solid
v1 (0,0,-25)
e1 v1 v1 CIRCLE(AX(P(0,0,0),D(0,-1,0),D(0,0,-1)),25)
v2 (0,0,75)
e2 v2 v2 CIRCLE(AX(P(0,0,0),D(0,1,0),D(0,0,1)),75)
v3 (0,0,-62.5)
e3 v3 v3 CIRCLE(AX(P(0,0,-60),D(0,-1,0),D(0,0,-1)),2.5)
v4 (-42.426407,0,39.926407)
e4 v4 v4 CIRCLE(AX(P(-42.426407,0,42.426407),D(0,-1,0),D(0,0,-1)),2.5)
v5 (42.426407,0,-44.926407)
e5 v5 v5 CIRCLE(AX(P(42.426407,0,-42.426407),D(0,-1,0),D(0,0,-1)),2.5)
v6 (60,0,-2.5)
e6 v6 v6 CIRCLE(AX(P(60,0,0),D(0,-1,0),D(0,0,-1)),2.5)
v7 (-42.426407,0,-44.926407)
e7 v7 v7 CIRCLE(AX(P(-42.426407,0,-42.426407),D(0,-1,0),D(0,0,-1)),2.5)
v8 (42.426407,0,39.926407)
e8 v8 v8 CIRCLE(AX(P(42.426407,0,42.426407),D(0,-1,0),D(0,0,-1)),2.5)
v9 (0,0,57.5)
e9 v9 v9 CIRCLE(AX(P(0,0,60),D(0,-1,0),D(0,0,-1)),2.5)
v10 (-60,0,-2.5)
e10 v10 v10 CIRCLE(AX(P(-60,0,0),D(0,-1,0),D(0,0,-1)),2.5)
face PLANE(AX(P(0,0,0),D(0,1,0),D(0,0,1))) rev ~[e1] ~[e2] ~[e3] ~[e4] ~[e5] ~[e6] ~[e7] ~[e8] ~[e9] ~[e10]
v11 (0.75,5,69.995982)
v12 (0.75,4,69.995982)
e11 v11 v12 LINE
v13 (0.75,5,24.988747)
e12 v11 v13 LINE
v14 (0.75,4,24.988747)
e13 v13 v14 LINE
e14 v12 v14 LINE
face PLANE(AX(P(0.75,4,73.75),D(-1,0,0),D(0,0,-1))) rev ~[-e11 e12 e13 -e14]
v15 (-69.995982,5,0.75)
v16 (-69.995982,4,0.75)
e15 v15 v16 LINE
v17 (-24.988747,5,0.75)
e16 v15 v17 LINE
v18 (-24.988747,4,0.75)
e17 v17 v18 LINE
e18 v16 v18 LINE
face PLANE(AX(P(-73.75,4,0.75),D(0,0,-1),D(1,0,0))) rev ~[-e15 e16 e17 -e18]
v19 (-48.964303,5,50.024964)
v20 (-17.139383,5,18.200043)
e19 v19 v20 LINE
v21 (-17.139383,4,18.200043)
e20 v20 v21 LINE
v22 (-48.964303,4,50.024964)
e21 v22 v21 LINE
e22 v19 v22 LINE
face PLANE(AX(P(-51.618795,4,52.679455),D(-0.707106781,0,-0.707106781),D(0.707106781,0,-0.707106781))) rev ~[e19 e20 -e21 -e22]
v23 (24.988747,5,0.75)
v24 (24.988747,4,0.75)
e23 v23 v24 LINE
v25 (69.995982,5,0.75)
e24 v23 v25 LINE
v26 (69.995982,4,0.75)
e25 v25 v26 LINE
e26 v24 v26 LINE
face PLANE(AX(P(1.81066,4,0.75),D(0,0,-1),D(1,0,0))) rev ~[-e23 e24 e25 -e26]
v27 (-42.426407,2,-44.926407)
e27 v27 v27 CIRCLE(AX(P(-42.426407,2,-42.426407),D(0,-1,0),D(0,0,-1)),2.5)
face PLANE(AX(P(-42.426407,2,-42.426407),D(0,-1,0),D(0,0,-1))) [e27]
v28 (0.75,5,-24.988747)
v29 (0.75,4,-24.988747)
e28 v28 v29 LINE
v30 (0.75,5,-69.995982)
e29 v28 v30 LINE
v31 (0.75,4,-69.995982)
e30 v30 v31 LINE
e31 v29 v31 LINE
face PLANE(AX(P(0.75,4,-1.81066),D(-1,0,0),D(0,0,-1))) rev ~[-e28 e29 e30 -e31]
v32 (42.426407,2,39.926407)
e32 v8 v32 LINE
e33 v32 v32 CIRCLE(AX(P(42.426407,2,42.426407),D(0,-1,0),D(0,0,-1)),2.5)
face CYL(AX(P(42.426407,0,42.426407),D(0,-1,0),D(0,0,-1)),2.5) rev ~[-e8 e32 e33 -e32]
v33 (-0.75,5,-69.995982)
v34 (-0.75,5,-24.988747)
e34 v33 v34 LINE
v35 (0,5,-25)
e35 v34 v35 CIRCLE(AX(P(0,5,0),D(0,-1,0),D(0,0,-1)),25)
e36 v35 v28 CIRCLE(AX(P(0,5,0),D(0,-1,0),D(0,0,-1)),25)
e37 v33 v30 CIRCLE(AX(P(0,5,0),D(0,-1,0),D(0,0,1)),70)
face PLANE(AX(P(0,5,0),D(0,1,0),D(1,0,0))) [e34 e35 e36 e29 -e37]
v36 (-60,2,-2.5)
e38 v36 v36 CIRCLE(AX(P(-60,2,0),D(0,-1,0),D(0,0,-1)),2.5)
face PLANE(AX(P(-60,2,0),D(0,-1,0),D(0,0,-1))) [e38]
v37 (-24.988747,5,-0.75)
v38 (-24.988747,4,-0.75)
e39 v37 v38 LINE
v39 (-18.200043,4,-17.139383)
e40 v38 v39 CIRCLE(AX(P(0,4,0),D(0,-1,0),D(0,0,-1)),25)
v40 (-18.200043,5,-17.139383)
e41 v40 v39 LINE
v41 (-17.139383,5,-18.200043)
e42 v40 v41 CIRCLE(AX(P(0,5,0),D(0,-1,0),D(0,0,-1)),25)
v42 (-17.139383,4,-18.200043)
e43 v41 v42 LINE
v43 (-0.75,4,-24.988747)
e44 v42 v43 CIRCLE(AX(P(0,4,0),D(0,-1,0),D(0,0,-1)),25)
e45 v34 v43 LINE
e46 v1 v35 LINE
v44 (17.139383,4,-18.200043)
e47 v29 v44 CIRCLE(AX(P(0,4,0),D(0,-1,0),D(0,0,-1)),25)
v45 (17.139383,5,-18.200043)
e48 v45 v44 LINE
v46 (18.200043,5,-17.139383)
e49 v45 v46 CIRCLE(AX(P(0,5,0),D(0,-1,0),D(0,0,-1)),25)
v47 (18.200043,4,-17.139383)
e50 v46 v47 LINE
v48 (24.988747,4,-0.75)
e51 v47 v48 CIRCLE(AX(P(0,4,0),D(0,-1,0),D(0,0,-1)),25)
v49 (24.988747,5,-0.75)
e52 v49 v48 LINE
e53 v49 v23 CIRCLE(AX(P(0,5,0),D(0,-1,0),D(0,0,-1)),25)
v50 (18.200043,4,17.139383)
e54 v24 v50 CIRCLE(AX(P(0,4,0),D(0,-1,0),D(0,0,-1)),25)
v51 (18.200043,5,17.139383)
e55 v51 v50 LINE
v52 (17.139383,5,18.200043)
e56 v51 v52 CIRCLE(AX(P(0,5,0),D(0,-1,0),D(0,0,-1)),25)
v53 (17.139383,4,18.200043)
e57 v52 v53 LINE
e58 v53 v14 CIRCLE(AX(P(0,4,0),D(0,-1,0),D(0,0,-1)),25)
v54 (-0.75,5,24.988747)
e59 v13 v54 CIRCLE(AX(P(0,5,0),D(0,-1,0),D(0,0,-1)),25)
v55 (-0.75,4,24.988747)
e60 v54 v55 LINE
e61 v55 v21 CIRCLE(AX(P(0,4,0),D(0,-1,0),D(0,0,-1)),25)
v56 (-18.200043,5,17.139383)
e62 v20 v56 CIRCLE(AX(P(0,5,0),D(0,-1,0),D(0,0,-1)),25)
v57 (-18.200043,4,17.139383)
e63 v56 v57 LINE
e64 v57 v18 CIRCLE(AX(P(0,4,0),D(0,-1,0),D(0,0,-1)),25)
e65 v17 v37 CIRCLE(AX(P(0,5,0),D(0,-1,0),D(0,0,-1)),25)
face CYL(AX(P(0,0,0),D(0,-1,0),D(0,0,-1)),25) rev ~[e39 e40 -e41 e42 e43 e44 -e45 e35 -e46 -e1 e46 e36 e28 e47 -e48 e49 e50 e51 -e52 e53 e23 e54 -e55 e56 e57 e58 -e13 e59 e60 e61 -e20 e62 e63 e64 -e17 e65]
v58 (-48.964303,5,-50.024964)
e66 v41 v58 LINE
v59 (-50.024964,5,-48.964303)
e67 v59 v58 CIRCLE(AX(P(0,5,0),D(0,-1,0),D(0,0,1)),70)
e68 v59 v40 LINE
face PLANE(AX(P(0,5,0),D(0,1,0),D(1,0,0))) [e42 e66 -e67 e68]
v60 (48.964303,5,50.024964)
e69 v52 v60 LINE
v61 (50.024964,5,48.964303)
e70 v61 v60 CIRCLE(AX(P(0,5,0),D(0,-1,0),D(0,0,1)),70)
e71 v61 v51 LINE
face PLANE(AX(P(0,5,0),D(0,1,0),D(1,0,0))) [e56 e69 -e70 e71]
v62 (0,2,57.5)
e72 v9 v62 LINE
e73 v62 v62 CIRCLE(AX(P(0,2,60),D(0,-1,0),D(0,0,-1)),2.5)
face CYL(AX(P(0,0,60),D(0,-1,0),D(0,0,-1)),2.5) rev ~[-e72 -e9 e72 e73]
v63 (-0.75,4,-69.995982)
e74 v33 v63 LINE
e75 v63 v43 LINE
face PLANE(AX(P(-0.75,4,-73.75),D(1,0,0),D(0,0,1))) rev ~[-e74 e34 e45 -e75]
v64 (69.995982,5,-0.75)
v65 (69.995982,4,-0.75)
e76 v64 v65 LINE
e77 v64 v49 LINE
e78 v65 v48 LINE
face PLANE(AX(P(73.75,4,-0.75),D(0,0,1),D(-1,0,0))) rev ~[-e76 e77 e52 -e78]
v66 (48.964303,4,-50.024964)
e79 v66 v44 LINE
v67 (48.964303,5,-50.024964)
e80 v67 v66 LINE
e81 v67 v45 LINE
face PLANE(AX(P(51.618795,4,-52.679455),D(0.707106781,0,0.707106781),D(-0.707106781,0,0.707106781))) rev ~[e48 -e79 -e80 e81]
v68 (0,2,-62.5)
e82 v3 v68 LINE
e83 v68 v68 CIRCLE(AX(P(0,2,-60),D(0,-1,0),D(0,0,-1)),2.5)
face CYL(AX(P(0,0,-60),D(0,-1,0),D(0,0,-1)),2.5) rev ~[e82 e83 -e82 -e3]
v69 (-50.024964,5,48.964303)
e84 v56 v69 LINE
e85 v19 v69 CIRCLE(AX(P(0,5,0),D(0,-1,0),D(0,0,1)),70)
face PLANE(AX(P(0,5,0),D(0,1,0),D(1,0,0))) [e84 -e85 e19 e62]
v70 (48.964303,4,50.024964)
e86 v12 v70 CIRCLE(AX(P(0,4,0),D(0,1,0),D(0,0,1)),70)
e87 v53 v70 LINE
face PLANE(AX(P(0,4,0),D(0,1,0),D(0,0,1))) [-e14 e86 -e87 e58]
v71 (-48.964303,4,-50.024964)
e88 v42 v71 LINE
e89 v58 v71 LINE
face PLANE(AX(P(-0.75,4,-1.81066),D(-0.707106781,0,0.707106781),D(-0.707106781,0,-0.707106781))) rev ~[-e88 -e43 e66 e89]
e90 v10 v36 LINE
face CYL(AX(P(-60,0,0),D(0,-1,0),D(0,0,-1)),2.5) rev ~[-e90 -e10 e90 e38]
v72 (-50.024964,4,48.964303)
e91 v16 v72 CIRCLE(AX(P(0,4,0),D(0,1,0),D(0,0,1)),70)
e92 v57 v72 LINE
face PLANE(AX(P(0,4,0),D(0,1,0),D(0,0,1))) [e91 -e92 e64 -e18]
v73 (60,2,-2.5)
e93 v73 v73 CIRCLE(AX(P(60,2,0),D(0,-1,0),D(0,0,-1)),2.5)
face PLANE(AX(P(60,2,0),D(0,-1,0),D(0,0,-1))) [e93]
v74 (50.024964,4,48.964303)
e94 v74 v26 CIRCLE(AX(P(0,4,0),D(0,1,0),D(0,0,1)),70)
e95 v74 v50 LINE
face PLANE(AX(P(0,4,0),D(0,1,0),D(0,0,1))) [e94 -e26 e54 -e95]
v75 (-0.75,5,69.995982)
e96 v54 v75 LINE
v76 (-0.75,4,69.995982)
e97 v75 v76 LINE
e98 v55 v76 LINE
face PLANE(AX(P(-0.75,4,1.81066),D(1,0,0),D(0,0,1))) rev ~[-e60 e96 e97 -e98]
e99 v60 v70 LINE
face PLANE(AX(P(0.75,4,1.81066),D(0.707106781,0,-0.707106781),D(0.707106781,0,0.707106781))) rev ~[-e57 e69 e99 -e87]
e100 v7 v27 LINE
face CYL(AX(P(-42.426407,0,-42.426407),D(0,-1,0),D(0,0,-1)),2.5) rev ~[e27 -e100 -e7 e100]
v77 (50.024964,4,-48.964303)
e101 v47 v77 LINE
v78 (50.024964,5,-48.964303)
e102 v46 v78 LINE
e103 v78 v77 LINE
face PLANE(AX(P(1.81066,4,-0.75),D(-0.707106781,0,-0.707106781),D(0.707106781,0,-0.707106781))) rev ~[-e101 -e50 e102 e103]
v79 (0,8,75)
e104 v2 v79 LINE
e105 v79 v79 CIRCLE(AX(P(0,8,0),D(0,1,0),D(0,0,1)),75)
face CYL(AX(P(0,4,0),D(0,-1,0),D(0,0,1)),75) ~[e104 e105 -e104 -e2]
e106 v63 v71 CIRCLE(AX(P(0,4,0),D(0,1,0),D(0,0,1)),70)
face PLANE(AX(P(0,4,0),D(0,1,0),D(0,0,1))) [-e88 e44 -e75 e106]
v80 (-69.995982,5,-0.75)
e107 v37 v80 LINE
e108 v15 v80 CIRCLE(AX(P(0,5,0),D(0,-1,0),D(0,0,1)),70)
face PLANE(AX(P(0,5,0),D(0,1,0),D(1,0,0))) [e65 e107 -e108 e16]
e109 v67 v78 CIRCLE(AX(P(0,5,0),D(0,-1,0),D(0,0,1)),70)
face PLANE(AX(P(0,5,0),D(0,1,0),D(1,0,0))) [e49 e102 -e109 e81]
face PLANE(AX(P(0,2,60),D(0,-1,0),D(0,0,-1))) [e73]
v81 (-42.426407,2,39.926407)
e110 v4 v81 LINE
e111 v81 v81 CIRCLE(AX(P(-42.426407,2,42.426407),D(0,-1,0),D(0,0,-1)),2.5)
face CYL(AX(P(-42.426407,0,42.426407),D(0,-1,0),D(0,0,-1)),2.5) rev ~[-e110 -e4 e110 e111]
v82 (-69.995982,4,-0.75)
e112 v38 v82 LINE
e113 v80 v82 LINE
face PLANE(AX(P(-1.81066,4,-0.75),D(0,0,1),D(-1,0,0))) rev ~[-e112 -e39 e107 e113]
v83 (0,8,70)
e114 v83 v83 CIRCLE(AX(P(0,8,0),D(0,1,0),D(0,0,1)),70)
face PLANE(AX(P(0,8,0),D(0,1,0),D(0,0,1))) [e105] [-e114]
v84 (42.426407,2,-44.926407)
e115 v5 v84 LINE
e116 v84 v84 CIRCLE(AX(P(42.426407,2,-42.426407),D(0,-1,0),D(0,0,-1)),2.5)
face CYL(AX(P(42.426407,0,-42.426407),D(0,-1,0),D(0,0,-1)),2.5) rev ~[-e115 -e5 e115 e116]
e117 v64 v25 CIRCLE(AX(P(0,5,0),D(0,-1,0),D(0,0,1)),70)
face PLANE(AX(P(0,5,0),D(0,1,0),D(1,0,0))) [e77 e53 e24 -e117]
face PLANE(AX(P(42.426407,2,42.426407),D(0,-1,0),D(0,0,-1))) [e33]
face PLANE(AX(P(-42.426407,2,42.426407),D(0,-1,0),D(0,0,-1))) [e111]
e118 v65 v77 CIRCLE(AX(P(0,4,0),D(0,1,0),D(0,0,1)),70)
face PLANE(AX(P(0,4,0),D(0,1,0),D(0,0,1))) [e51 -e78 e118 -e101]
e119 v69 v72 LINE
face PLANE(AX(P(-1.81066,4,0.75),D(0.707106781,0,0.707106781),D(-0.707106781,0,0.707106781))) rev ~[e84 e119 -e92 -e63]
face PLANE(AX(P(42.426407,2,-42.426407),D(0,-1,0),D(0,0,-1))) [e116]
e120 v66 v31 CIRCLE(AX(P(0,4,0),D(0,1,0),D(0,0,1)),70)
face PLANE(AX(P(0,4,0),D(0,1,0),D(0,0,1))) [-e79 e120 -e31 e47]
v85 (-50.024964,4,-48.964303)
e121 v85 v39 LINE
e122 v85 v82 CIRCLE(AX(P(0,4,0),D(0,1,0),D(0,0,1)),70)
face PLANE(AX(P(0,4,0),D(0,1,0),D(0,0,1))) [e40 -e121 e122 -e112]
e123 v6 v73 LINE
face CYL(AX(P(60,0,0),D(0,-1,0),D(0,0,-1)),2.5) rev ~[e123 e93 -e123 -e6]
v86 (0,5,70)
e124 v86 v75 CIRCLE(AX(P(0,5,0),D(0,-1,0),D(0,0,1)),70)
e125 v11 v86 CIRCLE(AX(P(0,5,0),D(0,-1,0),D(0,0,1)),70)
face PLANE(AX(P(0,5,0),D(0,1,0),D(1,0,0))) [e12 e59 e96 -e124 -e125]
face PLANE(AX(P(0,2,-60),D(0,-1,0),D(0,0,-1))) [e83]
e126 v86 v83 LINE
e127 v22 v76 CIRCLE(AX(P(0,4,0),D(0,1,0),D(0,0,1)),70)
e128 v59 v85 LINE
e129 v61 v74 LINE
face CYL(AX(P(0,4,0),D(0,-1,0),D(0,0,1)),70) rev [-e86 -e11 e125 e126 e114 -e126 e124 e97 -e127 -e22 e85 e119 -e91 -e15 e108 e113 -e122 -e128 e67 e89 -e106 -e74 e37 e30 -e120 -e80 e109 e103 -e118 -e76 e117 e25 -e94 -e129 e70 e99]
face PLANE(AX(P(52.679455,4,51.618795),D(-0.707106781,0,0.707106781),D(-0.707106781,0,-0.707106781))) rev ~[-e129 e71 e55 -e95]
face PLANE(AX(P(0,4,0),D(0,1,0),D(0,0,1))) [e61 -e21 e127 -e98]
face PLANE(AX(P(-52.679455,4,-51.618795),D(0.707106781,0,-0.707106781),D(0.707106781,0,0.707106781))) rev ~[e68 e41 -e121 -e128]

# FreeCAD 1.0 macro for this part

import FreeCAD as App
import Part
import Sketcher
from FreeCAD import Vector


def add_polygon(sketch, points):
    """Adds a closed chain of lines whose ends are joined by coincident constraints."""
    first, n = sketch.GeometryCount, len(points)
    for a, b in zip(points, points[1:] + points[:1]):
        sketch.addGeometry(Part.LineSegment(App.Vector(*a, 0), App.Vector(*b, 0)), False)
    for i in range(n):
        sketch.addConstraint(Sketcher.Constraint("Coincident", first + i, 2, first + (i + 1) % n, 1))

doc = App.newDocument("Part")
body = doc.addObject("PartDesign::Body", "Body")

sketch1 = doc.addObject("Sketcher::SketchObject", "Sketch")
body.addObject(sketch1)
sketch1.AttachmentSupport = (doc.XZ_Plane, [""])
sketch1.MapMode = "FlatFace"
sketch1.addGeometry(Part.Circle(Vector(0, 0, 0), Vector(0, 0, 1), 75), False)
sketch1.addConstraint(Sketcher.Constraint("Coincident", 0, 3, -1, 1))
sketch1.addConstraint(Sketcher.Constraint("Diameter", 0, 150.0))
pad1 = doc.addObject("PartDesign::Pad", "Pad")
body.addObject(pad1)
pad1.Profile = sketch1
pad1.Length = 4
pad1.Reversed = True

sketch2 = doc.addObject("Sketcher::SketchObject", "Sketch001")
body.addObject(sketch2)
sketch2.AttachmentSupport = (doc.XZ_Plane, [""])
sketch2.MapMode = "FlatFace"
sketch2.AttachmentOffset = App.Placement(Vector(0, 0, -4), App.Rotation())
sketch2.addGeometry(Part.Circle(Vector(0, 0, 0), Vector(0, 0, 1), 75), False)
sketch2.addGeometry(Part.Circle(Vector(0, 0, 0), Vector(0, 0, 1), 70), False)
sketch2.addConstraint(Sketcher.Constraint("Coincident", 0, 3, -1, 1))
sketch2.addConstraint(Sketcher.Constraint("Coincident", 1, 3, -1, 1))
sketch2.addConstraint(Sketcher.Constraint("Diameter", 0, 150.0))
sketch2.addConstraint(Sketcher.Constraint("Diameter", 1, 140.0))
pad2 = doc.addObject("PartDesign::Pad", "Pad001")
body.addObject(pad2)
pad2.Profile = sketch2
pad2.Length = 4
pad2.Reversed = True

sketch3 = doc.addObject("Sketcher::SketchObject", "Sketch002")
body.addObject(sketch3)
sketch3.AttachmentSupport = (doc.XZ_Plane, [""])
sketch3.MapMode = "FlatFace"
sketch3.AttachmentOffset = App.Placement(Vector(0, 0, -4), App.Rotation())
add_polygon(sketch3, [(0.8, 1.8), (51.6, 52.7), (52.7, 51.6), (1.8, 0.8), (73.8, 0.8), (73.8, -0.8), (1.8, -0.8), (52.7, -51.6), (51.6, -52.7), (0.8, -1.8), (0.8, -73.8), (-0.8, -73.8), (-0.8, -1.8), (-51.6, -52.7), (-52.7, -51.6), (-1.8, -0.8), (-73.8, -0.8), (-73.8, 0.8), (-1.8, 0.8), (-52.7, 51.6), (-51.6, 52.7), (-0.8, 1.8), (-0.8, 73.8), (0.8, 73.8)])
sketch3.addConstraint(Sketcher.Constraint("Horizontal", 3))
sketch3.addConstraint(Sketcher.Constraint("Vertical", 4))
sketch3.addConstraint(Sketcher.Constraint("Horizontal", 5))
sketch3.addConstraint(Sketcher.Constraint("Vertical", 9))
sketch3.addConstraint(Sketcher.Constraint("Horizontal", 10))
sketch3.addConstraint(Sketcher.Constraint("Vertical", 11))
sketch3.addConstraint(Sketcher.Constraint("Horizontal", 15))
sketch3.addConstraint(Sketcher.Constraint("Vertical", 16))
sketch3.addConstraint(Sketcher.Constraint("Horizontal", 17))
sketch3.addConstraint(Sketcher.Constraint("Vertical", 21))
sketch3.addConstraint(Sketcher.Constraint("Horizontal", 22))
sketch3.addConstraint(Sketcher.Constraint("Vertical", 23))
sketch3.addConstraint(Sketcher.Constraint("Symmetric", 0, 2, 12, 2, -1, 1))
sketch3.addConstraint(Sketcher.Constraint("Symmetric", 1, 2, 13, 2, -1, 1))
sketch3.addConstraint(Sketcher.Constraint("Symmetric", 2, 2, 14, 2, -1, 1))
sketch3.addConstraint(Sketcher.Constraint("Symmetric", 4, 2, 16, 2, -1, 1))
sketch3.addConstraint(Sketcher.Constraint("Symmetric", 6, 2, 18, 2, -1, 1))
sketch3.addConstraint(Sketcher.Constraint("Symmetric", 7, 2, 19, 2, -1, 1))
sketch3.addConstraint(Sketcher.Constraint("Symmetric", 8, 2, 20, 2, -1, 1))
sketch3.addConstraint(Sketcher.Constraint("Symmetric", 10, 2, 22, 2, -1, 1))
sketch3.addConstraint(Sketcher.Constraint("Symmetric", 8, 2, 11, 2, -2))
sketch3.addConstraint(Sketcher.Constraint("Symmetric", 7, 2, 12, 2, -2))
sketch3.addConstraint(Sketcher.Constraint("Symmetric", 6, 2, 13, 2, -2))
sketch3.addConstraint(Sketcher.Constraint("Symmetric", 5, 2, 14, 2, -2))
sketch3.addConstraint(Sketcher.Constraint("Perpendicular", 0, 1))
sketch3.addConstraint(Sketcher.Constraint("Perpendicular", 1, 2))
sketch3.addConstraint(Sketcher.Constraint("Perpendicular", 2, 6))
sketch3.addConstraint(Sketcher.Constraint("Perpendicular", 7, 8))
sketch3.addConstraint(Sketcher.Constraint("Perpendicular", 14, 18))
sketch3.addConstraint(Sketcher.Constraint("Equal", 22, 4))
sketch3.addConstraint(Sketcher.Constraint("Equal", 17, 9))
sketch3.addConstraint(Sketcher.Constraint("Equal", 0, 2))
sketch3.addConstraint(Sketcher.Constraint("DistanceX", 10, 2, 10, 1, 1.5))
sketch3.addConstraint(Sketcher.Constraint("DistanceX", 8, 2, 4, 2, 73.0))
sketch3.addConstraint(Sketcher.Constraint("Distance", 1, 1.5))
sketch3.addConstraint(Sketcher.Constraint("Distance", 0, 71.93934))
pad3 = doc.addObject("PartDesign::Pad", "Pad002")
body.addObject(pad3)
pad3.Profile = sketch3
pad3.Length = 1
pad3.Reversed = True

sketch4 = doc.addObject("Sketcher::SketchObject", "Sketch003")
body.addObject(sketch4)
sketch4.AttachmentSupport = (doc.XZ_Plane, [""])
sketch4.MapMode = "FlatFace"
sketch4.addGeometry(Part.Circle(Vector(-60, 0, 0), Vector(0, 0, 1), 2.5), False)
sketch4.addGeometry(Part.Circle(Vector(-42.4, 42.4, 0), Vector(0, 0, 1), 2.5), False)
sketch4.addGeometry(Part.Circle(Vector(0, 60, 0), Vector(0, 0, 1), 2.5), False)
sketch4.addGeometry(Part.Circle(Vector(42.4, 42.4, 0), Vector(0, 0, 1), 2.5), False)
sketch4.addGeometry(Part.Circle(Vector(60, 0, 0), Vector(0, 0, 1), 2.5), False)
sketch4.addGeometry(Part.Circle(Vector(42.4, -42.4, 0), Vector(0, 0, 1), 2.5), False)
sketch4.addGeometry(Part.Circle(Vector(0, -60, 0), Vector(0, 0, 1), 2.5), False)
sketch4.addGeometry(Part.Circle(Vector(-42.4, -42.4, 0), Vector(0, 0, 1), 2.5), False)
sketch4.addConstraint(Sketcher.Constraint("Equal", 0, 1))
sketch4.addConstraint(Sketcher.Constraint("Equal", 1, 2))
sketch4.addConstraint(Sketcher.Constraint("Equal", 2, 3))
sketch4.addConstraint(Sketcher.Constraint("Equal", 3, 4))
sketch4.addConstraint(Sketcher.Constraint("Equal", 4, 5))
sketch4.addConstraint(Sketcher.Constraint("Equal", 5, 6))
sketch4.addConstraint(Sketcher.Constraint("Equal", 6, 7))
sketch4.addConstraint(Sketcher.Constraint("Symmetric", 0, 3, 4, 3, -1, 1))
sketch4.addConstraint(Sketcher.Constraint("Symmetric", 1, 3, 5, 3, -1, 1))
sketch4.addConstraint(Sketcher.Constraint("Symmetric", 2, 3, 6, 3, -1, 1))
sketch4.addConstraint(Sketcher.Constraint("Symmetric", 3, 3, 7, 3, -1, 1))
sketch4.addConstraint(Sketcher.Constraint("Symmetric", 1, 3, 3, 3, -2))
sketch4.addConstraint(Sketcher.Constraint("PointOnObject", 0, 3, -1))
sketch4.addConstraint(Sketcher.Constraint("PointOnObject", 2, 3, -2))
sketch4.addConstraint(Sketcher.Constraint("Diameter", 0, 5.0))
sketch4.addConstraint(Sketcher.Constraint("DistanceX", 0, 3, -1, 1, 60.0))
sketch4.addConstraint(Sketcher.Constraint("DistanceY", -1, 1, 2, 3, 60.0))
sketch4.addConstraint(Sketcher.Constraint("DistanceX", 1, 3, -1, 1, 42.426407))
sketch4.addConstraint(Sketcher.Constraint("DistanceY", -1, 1, 1, 3, 42.426407))
pocket1 = doc.addObject("PartDesign::Pocket", "Pocket")
body.addObject(pocket1)
pocket1.Profile = sketch4
pocket1.Length = 2

sketch5 = doc.addObject("Sketcher::SketchObject", "Sketch004")
body.addObject(sketch5)
sketch5.AttachmentSupport = (doc.XZ_Plane, [""])
sketch5.MapMode = "FlatFace"
sketch5.addGeometry(Part.Circle(Vector(0, 0, 0), Vector(0, 0, 1), 25), False)
sketch5.addConstraint(Sketcher.Constraint("Coincident", 0, 3, -1, 1))
sketch5.addConstraint(Sketcher.Constraint("Diameter", 0, 50.0))
pocket2 = doc.addObject("PartDesign::Pocket", "Pocket001")
body.addObject(pocket2)
pocket2.Profile = sketch5
pocket2.Length = 6

doc.recompute()
